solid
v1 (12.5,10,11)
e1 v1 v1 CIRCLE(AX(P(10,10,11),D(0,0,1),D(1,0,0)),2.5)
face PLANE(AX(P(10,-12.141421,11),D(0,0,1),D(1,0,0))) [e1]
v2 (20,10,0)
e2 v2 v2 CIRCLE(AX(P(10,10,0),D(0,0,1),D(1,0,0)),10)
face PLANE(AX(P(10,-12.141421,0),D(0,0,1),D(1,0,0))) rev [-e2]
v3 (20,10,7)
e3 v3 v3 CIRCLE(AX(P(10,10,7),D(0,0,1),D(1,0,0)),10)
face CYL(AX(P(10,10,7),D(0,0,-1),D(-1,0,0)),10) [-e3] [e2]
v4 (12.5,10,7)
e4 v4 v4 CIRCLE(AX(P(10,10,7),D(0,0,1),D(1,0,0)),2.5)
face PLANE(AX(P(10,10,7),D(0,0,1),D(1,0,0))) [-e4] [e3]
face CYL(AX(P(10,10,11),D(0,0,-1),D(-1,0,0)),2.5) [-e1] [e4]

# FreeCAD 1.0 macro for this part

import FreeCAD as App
import Part
import Sketcher

V = App.Vector

doc = App.newDocument("Part")
params = doc.addObject("Spreadsheet::Sheet", "Params")
for row, (alias, value) in enumerate([
    ("sketch1_diameter", "5 mm"),
    ("pad1_length", "11 mm"),
    ("sketch2_diameter", "20 mm"),
    ("sketch2_diameter2", "5 mm"),
    ("pad2_length", "7 mm"),
], start=1):
    params.set(f"A{row}", alias)
    params.set(f"B{row}", "=" + value)
    params.setAlias(f"B{row}", alias)

body = doc.addObject("PartDesign::Body", "Body")

# Sketch on XY plane
sketch1 = doc.addObject("Sketcher::SketchObject", "Sketch")
body.addObject(sketch1)
sketch1.AttachmentSupport = (doc.XY_Plane, [""])
sketch1.MapMode = "FlatFace"
sketch1.addGeometry(Part.Circle(V(10, 10, 0), V(0, 0, 1), 2.5), False)
sketch1.addConstraint([
    Sketcher.Constraint("Diameter", 0, 5.0),
    Sketcher.Constraint("DistanceX", -1, 1, 0, 3, 10.0),
    Sketcher.Constraint("DistanceY", -1, 1, 0, 3, 10.0),
])
sketch1.setExpression("Constraints[0]", "Params.sketch1_diameter")
pad1 = doc.addObject("PartDesign::Pad", "Pad")
body.addObject(pad1)
pad1.Profile = sketch1
pad1.setExpression("Length", "Params.pad1_length")

# Sketch on XY plane
sketch2 = doc.addObject("Sketcher::SketchObject", "Sketch001")
body.addObject(sketch2)
sketch2.AttachmentSupport = (doc.XY_Plane, [""])
sketch2.MapMode = "FlatFace"
sketch2.addGeometry([
    Part.Circle(V(10, 10, 0), V(0, 0, 1), 10),
    Part.Circle(V(10, 10, 0), V(0, 0, 1), 2.5),
], False)
sketch2.addConstraint([
    Sketcher.Constraint("Coincident", 1, 3, 0, 3),
    Sketcher.Constraint("Diameter", 0, 20.0),
    Sketcher.Constraint("Diameter", 1, 5.0),
    Sketcher.Constraint("DistanceX", -1, 1, 0, 3, 10.0),
    Sketcher.Constraint("DistanceY", -1, 1, 0, 3, 10.0),
])
sketch2.setExpression("Constraints[1]", "Params.sketch2_diameter")
sketch2.setExpression("Constraints[2]", "Params.sketch2_diameter2")
pad2 = doc.addObject("PartDesign::Pad", "Pad001")
body.addObject(pad2)
pad2.Profile = sketch2
pad2.setExpression("Length", "Params.pad2_length")

doc.recompute()
